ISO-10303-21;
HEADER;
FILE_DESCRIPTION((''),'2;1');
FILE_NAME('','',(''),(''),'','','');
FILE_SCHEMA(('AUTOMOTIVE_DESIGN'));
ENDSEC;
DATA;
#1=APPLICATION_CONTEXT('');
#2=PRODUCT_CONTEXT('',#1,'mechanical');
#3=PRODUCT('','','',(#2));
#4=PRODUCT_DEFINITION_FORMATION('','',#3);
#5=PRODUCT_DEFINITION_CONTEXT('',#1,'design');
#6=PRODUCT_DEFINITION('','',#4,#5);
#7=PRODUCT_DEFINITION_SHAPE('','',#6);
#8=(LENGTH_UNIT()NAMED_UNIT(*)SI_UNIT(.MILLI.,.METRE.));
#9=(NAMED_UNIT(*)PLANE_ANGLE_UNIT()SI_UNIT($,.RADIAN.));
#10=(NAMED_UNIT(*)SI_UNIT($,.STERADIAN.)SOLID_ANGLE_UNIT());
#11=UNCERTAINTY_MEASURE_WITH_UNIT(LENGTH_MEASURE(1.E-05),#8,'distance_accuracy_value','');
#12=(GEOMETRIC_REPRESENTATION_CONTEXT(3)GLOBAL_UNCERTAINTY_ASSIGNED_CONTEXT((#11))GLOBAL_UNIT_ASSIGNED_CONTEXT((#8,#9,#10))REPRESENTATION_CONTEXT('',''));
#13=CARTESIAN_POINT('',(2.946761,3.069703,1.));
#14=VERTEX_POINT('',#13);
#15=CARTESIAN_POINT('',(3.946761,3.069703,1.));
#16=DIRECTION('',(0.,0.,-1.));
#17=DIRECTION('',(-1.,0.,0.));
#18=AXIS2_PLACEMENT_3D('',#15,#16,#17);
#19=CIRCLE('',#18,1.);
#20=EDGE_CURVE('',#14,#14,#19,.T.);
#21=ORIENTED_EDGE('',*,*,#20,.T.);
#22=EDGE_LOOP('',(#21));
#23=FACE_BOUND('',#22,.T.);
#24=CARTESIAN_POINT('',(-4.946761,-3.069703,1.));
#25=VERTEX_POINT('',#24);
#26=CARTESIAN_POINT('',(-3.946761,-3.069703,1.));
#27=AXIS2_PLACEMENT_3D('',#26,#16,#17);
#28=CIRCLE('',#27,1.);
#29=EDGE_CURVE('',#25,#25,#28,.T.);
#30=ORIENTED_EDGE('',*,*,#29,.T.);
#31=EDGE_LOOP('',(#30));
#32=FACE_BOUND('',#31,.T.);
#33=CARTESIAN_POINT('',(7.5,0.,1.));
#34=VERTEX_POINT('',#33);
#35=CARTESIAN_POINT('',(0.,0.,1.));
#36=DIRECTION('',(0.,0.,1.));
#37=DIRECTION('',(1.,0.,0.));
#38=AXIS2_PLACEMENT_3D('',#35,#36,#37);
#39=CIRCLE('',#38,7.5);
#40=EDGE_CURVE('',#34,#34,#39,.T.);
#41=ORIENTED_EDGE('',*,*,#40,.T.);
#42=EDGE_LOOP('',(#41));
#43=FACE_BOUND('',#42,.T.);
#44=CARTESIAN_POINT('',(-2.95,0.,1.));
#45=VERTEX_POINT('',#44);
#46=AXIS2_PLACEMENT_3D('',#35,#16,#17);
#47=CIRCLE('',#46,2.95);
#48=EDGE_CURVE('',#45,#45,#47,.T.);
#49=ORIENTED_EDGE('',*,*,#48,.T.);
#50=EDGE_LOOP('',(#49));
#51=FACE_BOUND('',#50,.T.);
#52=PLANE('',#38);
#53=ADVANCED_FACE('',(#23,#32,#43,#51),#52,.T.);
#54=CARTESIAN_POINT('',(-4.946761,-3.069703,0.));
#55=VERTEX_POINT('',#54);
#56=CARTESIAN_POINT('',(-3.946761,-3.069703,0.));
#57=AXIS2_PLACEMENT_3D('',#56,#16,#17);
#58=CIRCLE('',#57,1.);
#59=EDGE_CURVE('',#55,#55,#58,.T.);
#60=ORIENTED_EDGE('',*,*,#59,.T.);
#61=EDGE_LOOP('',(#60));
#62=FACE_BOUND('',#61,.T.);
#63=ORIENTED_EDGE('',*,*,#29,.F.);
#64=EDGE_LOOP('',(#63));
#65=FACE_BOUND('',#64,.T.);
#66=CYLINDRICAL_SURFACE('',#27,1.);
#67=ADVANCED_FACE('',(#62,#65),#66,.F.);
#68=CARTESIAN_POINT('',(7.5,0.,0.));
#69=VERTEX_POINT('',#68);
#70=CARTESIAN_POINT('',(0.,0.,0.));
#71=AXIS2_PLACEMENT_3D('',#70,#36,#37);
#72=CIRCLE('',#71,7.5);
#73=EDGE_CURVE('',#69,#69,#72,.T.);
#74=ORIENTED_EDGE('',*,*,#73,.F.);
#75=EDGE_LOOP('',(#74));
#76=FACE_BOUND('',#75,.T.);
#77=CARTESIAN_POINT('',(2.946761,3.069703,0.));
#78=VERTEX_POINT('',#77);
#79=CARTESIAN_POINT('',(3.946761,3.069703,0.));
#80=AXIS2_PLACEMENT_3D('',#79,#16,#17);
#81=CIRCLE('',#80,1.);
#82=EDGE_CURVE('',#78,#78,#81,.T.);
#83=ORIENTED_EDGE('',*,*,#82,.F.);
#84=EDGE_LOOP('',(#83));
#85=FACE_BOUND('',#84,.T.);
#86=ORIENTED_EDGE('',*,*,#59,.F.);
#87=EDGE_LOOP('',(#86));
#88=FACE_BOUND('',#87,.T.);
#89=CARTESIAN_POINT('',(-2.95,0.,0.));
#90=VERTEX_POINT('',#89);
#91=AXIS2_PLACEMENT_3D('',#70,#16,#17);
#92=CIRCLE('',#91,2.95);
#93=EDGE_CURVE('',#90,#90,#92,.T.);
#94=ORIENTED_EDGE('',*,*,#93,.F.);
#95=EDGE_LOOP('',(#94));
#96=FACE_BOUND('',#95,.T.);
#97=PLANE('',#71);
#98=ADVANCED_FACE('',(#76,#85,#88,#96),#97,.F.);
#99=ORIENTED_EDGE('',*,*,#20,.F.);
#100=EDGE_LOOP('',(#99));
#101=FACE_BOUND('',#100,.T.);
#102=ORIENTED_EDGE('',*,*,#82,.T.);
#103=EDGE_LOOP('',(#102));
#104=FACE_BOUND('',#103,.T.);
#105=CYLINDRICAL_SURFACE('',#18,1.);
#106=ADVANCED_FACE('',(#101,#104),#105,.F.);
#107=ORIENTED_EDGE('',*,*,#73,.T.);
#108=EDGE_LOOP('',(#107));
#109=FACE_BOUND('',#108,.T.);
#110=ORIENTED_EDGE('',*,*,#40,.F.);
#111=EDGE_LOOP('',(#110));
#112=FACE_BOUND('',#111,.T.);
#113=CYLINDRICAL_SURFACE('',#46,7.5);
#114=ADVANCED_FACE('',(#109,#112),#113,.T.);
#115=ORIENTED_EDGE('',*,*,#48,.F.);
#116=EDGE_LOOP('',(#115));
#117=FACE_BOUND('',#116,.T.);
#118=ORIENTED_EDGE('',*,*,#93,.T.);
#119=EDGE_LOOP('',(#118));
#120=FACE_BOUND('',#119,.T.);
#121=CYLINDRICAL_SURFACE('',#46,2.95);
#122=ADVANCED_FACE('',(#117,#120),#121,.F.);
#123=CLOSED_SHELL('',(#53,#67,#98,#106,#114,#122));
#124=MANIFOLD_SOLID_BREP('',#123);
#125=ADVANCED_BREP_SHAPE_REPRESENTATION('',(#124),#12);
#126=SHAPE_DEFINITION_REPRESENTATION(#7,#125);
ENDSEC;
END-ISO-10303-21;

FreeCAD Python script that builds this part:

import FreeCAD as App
import Part
import Sketcher
Q = App.Units.Quantity

doc = App.newDocument("Part")
params = doc.addObject("Spreadsheet::Sheet", "Params")
for row, (alias, value) in enumerate([
    ("sketch1_diameter", "15 mm"),
    ("pad1_length", "1 mm"),
    ("sketch2_diameter", "2 mm"),
    ("sketch2_diameter2", "5.9 mm"),
], start=1):
    params.set(f"A{row}", alias)
    params.set(f"B{row}", "=" + value)
    params.setAlias(f"B{row}", alias)

body = doc.addObject("PartDesign::Body", "Body")

sketch1 = body.newObject("Sketcher::SketchObject", "Sketch")
sketch1.AttachmentSupport = (doc.getObject("XY_Plane"), [""])
sketch1.MapMode = "FlatFace"
sketch1.addGeometry(Part.Circle(App.Vector(0, 0, 0), App.Vector(0, 0, 1), 8), False)
sketch1.addConstraint(Sketcher.Constraint("Coincident", 0, 3, -1, 1))
sketch1.addConstraint(Sketcher.Constraint("Diameter", 0, Q("15 mm")))
sketch1.setExpression("Constraints[1]", "Params.sketch1_diameter")
pad1 = body.newObject("PartDesign::Pad", "Pad")
pad1.Profile = sketch1
pad1.setExpression("Length", "Params.pad1_length")

sketch2 = body.newObject("Sketcher::SketchObject", "Sketch001")
sketch2.AttachmentSupport = (doc.getObject("XY_Plane"), [""])
sketch2.MapMode = "FlatFace"
sketch2.addGeometry(Part.Circle(App.Vector(0, 0, 0), App.Vector(0, 0, 1), 3), False)
sketch2.addGeometry(Part.Circle(App.Vector(3.9, 3.1, 0), App.Vector(0, 0, 1), 1), False)
sketch2.addGeometry(Part.Circle(App.Vector(-3.9, -3.1, 0), App.Vector(0, 0, 1), 1), False)
sketch2.addConstraint(Sketcher.Constraint("Coincident", 0, 3, -1, 1))
sketch2.addConstraint(Sketcher.Constraint("Equal", 1, 2))
sketch2.addConstraint(Sketcher.Constraint("Symmetric", 1, 3, 2, 3, -1, 1))
sketch2.addConstraint(Sketcher.Constraint("Diameter", 1, Q("2 mm")))
sketch2.addConstraint(Sketcher.Constraint("Diameter", 0, Q("5.9 mm")))
sketch2.addConstraint(Sketcher.Constraint("DistanceX", -1, 1, 1, 3, Q("3.946761 mm")))
sketch2.addConstraint(Sketcher.Constraint("DistanceY", -1, 1, 1, 3, Q("3.069703 mm")))
sketch2.setExpression("Constraints[3]", "Params.sketch2_diameter")
sketch2.setExpression("Constraints[4]", "Params.sketch2_diameter2")
pocket1 = body.newObject("PartDesign::Pocket", "Pocket")
pocket1.Profile = sketch2
pocket1.Type = "ThroughAll"
pocket1.Reversed = True

doc.recompute()
